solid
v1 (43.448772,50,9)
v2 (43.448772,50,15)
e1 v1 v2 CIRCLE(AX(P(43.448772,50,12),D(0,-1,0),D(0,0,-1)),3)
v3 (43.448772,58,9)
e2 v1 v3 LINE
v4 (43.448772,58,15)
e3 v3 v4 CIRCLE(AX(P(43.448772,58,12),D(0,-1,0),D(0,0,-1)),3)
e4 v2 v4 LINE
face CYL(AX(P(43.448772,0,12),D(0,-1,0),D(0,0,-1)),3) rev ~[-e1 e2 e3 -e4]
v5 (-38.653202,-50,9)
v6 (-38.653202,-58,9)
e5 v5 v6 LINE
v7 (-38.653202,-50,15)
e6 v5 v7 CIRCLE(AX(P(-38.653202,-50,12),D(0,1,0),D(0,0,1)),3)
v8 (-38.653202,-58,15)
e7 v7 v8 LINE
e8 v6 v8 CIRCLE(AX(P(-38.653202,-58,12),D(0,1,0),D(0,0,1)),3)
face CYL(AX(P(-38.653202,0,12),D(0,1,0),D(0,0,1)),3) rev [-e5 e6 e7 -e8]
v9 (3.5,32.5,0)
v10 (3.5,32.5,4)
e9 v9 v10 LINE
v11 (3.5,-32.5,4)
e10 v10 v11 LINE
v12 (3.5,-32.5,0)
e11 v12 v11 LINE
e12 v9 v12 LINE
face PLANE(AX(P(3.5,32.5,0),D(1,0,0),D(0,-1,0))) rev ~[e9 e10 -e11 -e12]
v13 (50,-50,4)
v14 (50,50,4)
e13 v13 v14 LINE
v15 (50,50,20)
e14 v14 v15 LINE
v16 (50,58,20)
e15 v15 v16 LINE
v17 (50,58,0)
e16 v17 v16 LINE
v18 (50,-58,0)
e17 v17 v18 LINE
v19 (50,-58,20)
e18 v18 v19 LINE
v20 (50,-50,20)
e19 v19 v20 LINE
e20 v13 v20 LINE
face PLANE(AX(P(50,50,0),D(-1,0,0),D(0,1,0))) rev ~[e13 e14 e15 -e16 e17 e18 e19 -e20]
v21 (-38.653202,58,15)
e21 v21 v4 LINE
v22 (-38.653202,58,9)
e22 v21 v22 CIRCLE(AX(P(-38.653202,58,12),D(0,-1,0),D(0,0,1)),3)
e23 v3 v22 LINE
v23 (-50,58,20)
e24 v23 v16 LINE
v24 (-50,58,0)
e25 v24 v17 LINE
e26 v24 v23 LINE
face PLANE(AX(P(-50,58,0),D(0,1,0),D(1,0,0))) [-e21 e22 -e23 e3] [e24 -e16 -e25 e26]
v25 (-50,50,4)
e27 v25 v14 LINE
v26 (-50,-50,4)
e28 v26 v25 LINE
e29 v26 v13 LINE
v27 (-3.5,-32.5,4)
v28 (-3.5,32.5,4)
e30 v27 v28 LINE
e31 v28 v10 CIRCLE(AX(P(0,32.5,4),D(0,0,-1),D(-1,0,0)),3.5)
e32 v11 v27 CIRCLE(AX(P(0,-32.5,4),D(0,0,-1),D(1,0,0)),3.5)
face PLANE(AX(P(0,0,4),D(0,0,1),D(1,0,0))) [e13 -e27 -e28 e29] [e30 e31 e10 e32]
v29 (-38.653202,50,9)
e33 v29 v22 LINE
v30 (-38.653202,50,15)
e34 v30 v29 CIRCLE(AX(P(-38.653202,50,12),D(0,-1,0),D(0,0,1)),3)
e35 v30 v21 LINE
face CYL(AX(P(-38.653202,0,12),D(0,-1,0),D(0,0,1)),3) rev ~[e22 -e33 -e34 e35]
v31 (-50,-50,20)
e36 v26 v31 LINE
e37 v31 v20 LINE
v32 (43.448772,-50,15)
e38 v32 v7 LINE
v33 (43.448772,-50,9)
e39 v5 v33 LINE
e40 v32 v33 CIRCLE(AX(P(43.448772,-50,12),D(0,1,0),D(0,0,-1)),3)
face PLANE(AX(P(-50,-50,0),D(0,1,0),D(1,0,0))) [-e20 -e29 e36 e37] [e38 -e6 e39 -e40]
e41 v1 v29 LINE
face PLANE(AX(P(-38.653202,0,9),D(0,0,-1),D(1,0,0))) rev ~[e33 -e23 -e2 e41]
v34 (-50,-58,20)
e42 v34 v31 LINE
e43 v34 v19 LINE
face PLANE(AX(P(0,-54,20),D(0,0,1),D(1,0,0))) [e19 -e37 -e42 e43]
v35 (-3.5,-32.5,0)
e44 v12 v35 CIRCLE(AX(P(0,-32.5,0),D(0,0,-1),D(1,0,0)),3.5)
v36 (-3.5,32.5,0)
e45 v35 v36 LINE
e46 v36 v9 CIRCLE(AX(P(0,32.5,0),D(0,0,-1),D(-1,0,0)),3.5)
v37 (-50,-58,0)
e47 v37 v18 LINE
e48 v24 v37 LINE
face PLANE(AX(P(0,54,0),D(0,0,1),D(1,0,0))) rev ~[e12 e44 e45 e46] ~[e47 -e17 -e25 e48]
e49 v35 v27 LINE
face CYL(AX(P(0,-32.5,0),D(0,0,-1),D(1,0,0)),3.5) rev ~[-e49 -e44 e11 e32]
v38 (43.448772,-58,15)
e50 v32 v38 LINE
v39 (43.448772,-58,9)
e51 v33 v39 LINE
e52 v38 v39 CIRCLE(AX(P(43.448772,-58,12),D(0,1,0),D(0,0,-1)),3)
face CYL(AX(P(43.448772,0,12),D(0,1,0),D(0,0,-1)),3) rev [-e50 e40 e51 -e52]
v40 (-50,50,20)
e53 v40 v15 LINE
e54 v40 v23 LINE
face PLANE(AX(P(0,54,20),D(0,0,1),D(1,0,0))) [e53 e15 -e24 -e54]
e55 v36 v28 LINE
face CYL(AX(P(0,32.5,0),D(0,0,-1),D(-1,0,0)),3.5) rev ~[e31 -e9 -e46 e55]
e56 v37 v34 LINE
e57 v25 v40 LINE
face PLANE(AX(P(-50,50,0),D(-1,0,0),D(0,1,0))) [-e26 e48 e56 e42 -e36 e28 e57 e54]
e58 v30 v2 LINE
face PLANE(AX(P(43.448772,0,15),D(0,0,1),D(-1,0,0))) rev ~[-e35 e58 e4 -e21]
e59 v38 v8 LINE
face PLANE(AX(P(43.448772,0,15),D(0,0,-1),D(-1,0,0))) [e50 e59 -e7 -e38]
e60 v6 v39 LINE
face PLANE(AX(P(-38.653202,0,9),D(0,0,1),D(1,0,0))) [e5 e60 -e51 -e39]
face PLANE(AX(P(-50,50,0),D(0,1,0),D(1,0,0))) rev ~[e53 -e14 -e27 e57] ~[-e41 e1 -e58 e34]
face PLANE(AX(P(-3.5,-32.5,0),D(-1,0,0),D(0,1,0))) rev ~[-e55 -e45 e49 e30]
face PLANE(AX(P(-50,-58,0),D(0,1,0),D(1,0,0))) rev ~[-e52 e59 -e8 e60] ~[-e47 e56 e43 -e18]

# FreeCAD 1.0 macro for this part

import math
import FreeCAD as App
import Part
import Sketcher

doc = App.newDocument("Part")
params = doc.addObject("Spreadsheet::Sheet", "Params")
for row, (alias, value) in enumerate([
    ("sketch1_radius", "3.5 mm"),
    ("sketch1_width", "100 mm"),
    ("sketch1_height", "65 mm"),
    ("pad1_length", "4 mm"),
    ("sketch2_width", "100 mm"),
    ("sketch2_height", "8 mm"),
    ("pad2_length", "20 mm"),
    ("sketch3_radius", "3 mm"),
], start=1):
    params.set(f"A{row}", alias)
    params.set(f"B{row}", "=" + value)
    params.setAlias(f"B{row}", alias)

body = doc.addObject("PartDesign::Body", "Body")

# Sketch on XY plane
sketch1 = body.newObject("Sketcher::SketchObject", "Sketch")
sketch1.AttachmentSupport = (doc.getObject("XY_Plane"), [""])
sketch1.MapMode = "FlatFace"
sketch1.addGeometry([
    Part.LineSegment(App.Vector(-50, 50, 0), App.Vector(-50, -50, 0)),  # 0
    Part.LineSegment(App.Vector(-50, -50, 0), App.Vector(50, -50, 0)),  # 1
    Part.LineSegment(App.Vector(50, -50, 0), App.Vector(50, 50, 0)),  # 2
    Part.LineSegment(App.Vector(50, 50, 0), App.Vector(-50, 50, 0)),  # 3
    Part.ArcOfCircle(Part.Circle(App.Vector(0, 32.5, 0), App.Vector(0, 0, 1), 3.5), math.radians(0), math.radians(180)),  # 4
    Part.LineSegment(App.Vector(3.5, 32.5, 0), App.Vector(3.5, -32.5, 0)),  # 5
    Part.ArcOfCircle(Part.Circle(App.Vector(0, -32.5, 0), App.Vector(0, 0, 1), 3.5), math.radians(180), math.radians(360)),  # 6
    Part.LineSegment(App.Vector(-3.5, -32.5, 0), App.Vector(-3.5, 32.5, 0)),  # 7
], False)
sketch1.addConstraint([
    Sketcher.Constraint("Coincident", 0, 2, 1, 1),
    Sketcher.Constraint("Coincident", 1, 2, 2, 1),
    Sketcher.Constraint("Coincident", 2, 2, 3, 1),
    Sketcher.Constraint("Coincident", 3, 2, 0, 1),
    Sketcher.Constraint("Tangent", 4, 1, 5, 1),
    Sketcher.Constraint("Tangent", 5, 2, 6, 2),
    Sketcher.Constraint("Tangent", 6, 1, 7, 1),
    Sketcher.Constraint("Tangent", 7, 2, 4, 2),
    Sketcher.Constraint("Vertical", 0),
    Sketcher.Constraint("Horizontal", 1),
    Sketcher.Constraint("Vertical", 2),
    Sketcher.Constraint("Horizontal", 3),
    Sketcher.Constraint("Vertical", 5),
    Sketcher.Constraint("Vertical", 7),
    Sketcher.Constraint("Symmetric", 4, 3, 6, 3, -1, 1),
    Sketcher.Constraint("Symmetric", 0, 2, 2, 2, -1, 1),
    Sketcher.Constraint("Equal", 3, 0),
    Sketcher.Constraint("Radius", 4, 3.5),
    Sketcher.Constraint("DistanceX", 1, 1, 1, 2, 100.0),
    Sketcher.Constraint("DistanceY", 5, 2, 5, 1, 65.0),
])
sketch1.setExpression("Constraints[17]", "Params.sketch1_radius")
sketch1.setExpression("Constraints[18]", "Params.sketch1_width")
sketch1.setExpression("Constraints[19]", "Params.sketch1_height")
pad1 = body.newObject("PartDesign::Pad", "Pad")
pad1.Profile = sketch1
pad1.setExpression("Length", "Params.pad1_length")

# Sketch on XY plane
sketch2 = body.newObject("Sketcher::SketchObject", "Sketch001")
sketch2.AttachmentSupport = (doc.getObject("XY_Plane"), [""])
sketch2.MapMode = "FlatFace"
sketch2.addGeometry([
    Part.LineSegment(App.Vector(-50, 58, 0), App.Vector(-50, 50, 0)),  # 0
    Part.LineSegment(App.Vector(-50, 50, 0), App.Vector(50, 50, 0)),  # 1
    Part.LineSegment(App.Vector(50, 50, 0), App.Vector(50, 58, 0)),  # 2
    Part.LineSegment(App.Vector(50, 58, 0), App.Vector(-50, 58, 0)),  # 3
    Part.LineSegment(App.Vector(-50, -50, 0), App.Vector(-50, -58, 0)),  # 4
    Part.LineSegment(App.Vector(-50, -58, 0), App.Vector(50, -58, 0)),  # 5
    Part.LineSegment(App.Vector(50, -58, 0), App.Vector(50, -50, 0)),  # 6
    Part.LineSegment(App.Vector(50, -50, 0), App.Vector(-50, -50, 0)),  # 7
], False)
sketch2.addConstraint([
    Sketcher.Constraint("Coincident", 0, 2, 1, 1),
    Sketcher.Constraint("Coincident", 1, 2, 2, 1),
    Sketcher.Constraint("Coincident", 2, 2, 3, 1),
    Sketcher.Constraint("Coincident", 3, 2, 0, 1),
    Sketcher.Constraint("Coincident", 4, 2, 5, 1),
    Sketcher.Constraint("Coincident", 5, 2, 6, 1),
    Sketcher.Constraint("Coincident", 6, 2, 7, 1),
    Sketcher.Constraint("Coincident", 7, 2, 4, 1),
    Sketcher.Constraint("Vertical", 0),
    Sketcher.Constraint("Horizontal", 1),
    Sketcher.Constraint("Vertical", 2),
    Sketcher.Constraint("Horizontal", 3),
    Sketcher.Constraint("Vertical", 4),
    Sketcher.Constraint("Horizontal", 5),
    Sketcher.Constraint("Vertical", 6),
    Sketcher.Constraint("Horizontal", 7),
    Sketcher.Constraint("Symmetric", 2, 2, 4, 2, -1, 1),
    Sketcher.Constraint("Symmetric", 0, 2, 6, 2, -1, 1),
    Sketcher.Constraint("Vertical", 3, 2, 4, 2),
    Sketcher.Constraint("DistanceX", 1, 1, 1, 2, 100.0),
    Sketcher.Constraint("DistanceY", 0, 2, 0, 1, 8.0),
    Sketcher.Constraint("DistanceY", -1, 1, 0, 2, 50.0),
])
sketch2.setExpression("Constraints[19]", "Params.sketch2_width")
sketch2.setExpression("Constraints[20]", "Params.sketch2_height")
pad2 = body.newObject("PartDesign::Pad", "Pad001")
pad2.Profile = sketch2
pad2.setExpression("Length", "Params.pad2_length")

# Sketch on XZ plane
sketch3 = body.newObject("Sketcher::SketchObject", "Sketch002")
sketch3.AttachmentSupport = (doc.getObject("XZ_Plane"), [""])
sketch3.MapMode = "FlatFace"
sketch3.addGeometry([
    Part.ArcOfCircle(Part.Circle(App.Vector(-38.7, 12, 0), App.Vector(0, 0, 1), 3), math.radians(90), math.radians(270)),
    Part.LineSegment(App.Vector(-38.7, 9, 0), App.Vector(43.4, 9, 0)),
    Part.ArcOfCircle(Part.Circle(App.Vector(43.4, 12, 0), App.Vector(0, 0, 1), 3), math.radians(-90), math.radians(90)),
    Part.LineSegment(App.Vector(43.4, 15, 0), App.Vector(-38.7, 15, 0)),
], False)
sketch3.addConstraint([
    Sketcher.Constraint("Tangent", 0, 2, 1, 1),
    Sketcher.Constraint("Tangent", 1, 2, 2, 1),
    Sketcher.Constraint("Tangent", 2, 2, 3, 1),
    Sketcher.Constraint("Tangent", 3, 2, 0, 1),
    Sketcher.Constraint("Horizontal", 1),
    Sketcher.Constraint("Horizontal", 3),
    Sketcher.Constraint("Radius", 0, 3.0),
    Sketcher.Constraint("DistanceY", -1, 1, 0, 3, 12.0),
    Sketcher.Constraint("DistanceX", 1, 1, 1, 2, 82.101975),
    Sketcher.Constraint("DistanceX", 0, 3, -1, 1, 38.653202),
])
sketch3.setExpression("Constraints[6]", "Params.sketch3_radius")
pocket1 = body.newObject("PartDesign::Pocket", "Pocket")
pocket1.Profile = sketch3
pocket1.Type = "ThroughAll"
pocket1.Midplane = True

doc.recompute()
